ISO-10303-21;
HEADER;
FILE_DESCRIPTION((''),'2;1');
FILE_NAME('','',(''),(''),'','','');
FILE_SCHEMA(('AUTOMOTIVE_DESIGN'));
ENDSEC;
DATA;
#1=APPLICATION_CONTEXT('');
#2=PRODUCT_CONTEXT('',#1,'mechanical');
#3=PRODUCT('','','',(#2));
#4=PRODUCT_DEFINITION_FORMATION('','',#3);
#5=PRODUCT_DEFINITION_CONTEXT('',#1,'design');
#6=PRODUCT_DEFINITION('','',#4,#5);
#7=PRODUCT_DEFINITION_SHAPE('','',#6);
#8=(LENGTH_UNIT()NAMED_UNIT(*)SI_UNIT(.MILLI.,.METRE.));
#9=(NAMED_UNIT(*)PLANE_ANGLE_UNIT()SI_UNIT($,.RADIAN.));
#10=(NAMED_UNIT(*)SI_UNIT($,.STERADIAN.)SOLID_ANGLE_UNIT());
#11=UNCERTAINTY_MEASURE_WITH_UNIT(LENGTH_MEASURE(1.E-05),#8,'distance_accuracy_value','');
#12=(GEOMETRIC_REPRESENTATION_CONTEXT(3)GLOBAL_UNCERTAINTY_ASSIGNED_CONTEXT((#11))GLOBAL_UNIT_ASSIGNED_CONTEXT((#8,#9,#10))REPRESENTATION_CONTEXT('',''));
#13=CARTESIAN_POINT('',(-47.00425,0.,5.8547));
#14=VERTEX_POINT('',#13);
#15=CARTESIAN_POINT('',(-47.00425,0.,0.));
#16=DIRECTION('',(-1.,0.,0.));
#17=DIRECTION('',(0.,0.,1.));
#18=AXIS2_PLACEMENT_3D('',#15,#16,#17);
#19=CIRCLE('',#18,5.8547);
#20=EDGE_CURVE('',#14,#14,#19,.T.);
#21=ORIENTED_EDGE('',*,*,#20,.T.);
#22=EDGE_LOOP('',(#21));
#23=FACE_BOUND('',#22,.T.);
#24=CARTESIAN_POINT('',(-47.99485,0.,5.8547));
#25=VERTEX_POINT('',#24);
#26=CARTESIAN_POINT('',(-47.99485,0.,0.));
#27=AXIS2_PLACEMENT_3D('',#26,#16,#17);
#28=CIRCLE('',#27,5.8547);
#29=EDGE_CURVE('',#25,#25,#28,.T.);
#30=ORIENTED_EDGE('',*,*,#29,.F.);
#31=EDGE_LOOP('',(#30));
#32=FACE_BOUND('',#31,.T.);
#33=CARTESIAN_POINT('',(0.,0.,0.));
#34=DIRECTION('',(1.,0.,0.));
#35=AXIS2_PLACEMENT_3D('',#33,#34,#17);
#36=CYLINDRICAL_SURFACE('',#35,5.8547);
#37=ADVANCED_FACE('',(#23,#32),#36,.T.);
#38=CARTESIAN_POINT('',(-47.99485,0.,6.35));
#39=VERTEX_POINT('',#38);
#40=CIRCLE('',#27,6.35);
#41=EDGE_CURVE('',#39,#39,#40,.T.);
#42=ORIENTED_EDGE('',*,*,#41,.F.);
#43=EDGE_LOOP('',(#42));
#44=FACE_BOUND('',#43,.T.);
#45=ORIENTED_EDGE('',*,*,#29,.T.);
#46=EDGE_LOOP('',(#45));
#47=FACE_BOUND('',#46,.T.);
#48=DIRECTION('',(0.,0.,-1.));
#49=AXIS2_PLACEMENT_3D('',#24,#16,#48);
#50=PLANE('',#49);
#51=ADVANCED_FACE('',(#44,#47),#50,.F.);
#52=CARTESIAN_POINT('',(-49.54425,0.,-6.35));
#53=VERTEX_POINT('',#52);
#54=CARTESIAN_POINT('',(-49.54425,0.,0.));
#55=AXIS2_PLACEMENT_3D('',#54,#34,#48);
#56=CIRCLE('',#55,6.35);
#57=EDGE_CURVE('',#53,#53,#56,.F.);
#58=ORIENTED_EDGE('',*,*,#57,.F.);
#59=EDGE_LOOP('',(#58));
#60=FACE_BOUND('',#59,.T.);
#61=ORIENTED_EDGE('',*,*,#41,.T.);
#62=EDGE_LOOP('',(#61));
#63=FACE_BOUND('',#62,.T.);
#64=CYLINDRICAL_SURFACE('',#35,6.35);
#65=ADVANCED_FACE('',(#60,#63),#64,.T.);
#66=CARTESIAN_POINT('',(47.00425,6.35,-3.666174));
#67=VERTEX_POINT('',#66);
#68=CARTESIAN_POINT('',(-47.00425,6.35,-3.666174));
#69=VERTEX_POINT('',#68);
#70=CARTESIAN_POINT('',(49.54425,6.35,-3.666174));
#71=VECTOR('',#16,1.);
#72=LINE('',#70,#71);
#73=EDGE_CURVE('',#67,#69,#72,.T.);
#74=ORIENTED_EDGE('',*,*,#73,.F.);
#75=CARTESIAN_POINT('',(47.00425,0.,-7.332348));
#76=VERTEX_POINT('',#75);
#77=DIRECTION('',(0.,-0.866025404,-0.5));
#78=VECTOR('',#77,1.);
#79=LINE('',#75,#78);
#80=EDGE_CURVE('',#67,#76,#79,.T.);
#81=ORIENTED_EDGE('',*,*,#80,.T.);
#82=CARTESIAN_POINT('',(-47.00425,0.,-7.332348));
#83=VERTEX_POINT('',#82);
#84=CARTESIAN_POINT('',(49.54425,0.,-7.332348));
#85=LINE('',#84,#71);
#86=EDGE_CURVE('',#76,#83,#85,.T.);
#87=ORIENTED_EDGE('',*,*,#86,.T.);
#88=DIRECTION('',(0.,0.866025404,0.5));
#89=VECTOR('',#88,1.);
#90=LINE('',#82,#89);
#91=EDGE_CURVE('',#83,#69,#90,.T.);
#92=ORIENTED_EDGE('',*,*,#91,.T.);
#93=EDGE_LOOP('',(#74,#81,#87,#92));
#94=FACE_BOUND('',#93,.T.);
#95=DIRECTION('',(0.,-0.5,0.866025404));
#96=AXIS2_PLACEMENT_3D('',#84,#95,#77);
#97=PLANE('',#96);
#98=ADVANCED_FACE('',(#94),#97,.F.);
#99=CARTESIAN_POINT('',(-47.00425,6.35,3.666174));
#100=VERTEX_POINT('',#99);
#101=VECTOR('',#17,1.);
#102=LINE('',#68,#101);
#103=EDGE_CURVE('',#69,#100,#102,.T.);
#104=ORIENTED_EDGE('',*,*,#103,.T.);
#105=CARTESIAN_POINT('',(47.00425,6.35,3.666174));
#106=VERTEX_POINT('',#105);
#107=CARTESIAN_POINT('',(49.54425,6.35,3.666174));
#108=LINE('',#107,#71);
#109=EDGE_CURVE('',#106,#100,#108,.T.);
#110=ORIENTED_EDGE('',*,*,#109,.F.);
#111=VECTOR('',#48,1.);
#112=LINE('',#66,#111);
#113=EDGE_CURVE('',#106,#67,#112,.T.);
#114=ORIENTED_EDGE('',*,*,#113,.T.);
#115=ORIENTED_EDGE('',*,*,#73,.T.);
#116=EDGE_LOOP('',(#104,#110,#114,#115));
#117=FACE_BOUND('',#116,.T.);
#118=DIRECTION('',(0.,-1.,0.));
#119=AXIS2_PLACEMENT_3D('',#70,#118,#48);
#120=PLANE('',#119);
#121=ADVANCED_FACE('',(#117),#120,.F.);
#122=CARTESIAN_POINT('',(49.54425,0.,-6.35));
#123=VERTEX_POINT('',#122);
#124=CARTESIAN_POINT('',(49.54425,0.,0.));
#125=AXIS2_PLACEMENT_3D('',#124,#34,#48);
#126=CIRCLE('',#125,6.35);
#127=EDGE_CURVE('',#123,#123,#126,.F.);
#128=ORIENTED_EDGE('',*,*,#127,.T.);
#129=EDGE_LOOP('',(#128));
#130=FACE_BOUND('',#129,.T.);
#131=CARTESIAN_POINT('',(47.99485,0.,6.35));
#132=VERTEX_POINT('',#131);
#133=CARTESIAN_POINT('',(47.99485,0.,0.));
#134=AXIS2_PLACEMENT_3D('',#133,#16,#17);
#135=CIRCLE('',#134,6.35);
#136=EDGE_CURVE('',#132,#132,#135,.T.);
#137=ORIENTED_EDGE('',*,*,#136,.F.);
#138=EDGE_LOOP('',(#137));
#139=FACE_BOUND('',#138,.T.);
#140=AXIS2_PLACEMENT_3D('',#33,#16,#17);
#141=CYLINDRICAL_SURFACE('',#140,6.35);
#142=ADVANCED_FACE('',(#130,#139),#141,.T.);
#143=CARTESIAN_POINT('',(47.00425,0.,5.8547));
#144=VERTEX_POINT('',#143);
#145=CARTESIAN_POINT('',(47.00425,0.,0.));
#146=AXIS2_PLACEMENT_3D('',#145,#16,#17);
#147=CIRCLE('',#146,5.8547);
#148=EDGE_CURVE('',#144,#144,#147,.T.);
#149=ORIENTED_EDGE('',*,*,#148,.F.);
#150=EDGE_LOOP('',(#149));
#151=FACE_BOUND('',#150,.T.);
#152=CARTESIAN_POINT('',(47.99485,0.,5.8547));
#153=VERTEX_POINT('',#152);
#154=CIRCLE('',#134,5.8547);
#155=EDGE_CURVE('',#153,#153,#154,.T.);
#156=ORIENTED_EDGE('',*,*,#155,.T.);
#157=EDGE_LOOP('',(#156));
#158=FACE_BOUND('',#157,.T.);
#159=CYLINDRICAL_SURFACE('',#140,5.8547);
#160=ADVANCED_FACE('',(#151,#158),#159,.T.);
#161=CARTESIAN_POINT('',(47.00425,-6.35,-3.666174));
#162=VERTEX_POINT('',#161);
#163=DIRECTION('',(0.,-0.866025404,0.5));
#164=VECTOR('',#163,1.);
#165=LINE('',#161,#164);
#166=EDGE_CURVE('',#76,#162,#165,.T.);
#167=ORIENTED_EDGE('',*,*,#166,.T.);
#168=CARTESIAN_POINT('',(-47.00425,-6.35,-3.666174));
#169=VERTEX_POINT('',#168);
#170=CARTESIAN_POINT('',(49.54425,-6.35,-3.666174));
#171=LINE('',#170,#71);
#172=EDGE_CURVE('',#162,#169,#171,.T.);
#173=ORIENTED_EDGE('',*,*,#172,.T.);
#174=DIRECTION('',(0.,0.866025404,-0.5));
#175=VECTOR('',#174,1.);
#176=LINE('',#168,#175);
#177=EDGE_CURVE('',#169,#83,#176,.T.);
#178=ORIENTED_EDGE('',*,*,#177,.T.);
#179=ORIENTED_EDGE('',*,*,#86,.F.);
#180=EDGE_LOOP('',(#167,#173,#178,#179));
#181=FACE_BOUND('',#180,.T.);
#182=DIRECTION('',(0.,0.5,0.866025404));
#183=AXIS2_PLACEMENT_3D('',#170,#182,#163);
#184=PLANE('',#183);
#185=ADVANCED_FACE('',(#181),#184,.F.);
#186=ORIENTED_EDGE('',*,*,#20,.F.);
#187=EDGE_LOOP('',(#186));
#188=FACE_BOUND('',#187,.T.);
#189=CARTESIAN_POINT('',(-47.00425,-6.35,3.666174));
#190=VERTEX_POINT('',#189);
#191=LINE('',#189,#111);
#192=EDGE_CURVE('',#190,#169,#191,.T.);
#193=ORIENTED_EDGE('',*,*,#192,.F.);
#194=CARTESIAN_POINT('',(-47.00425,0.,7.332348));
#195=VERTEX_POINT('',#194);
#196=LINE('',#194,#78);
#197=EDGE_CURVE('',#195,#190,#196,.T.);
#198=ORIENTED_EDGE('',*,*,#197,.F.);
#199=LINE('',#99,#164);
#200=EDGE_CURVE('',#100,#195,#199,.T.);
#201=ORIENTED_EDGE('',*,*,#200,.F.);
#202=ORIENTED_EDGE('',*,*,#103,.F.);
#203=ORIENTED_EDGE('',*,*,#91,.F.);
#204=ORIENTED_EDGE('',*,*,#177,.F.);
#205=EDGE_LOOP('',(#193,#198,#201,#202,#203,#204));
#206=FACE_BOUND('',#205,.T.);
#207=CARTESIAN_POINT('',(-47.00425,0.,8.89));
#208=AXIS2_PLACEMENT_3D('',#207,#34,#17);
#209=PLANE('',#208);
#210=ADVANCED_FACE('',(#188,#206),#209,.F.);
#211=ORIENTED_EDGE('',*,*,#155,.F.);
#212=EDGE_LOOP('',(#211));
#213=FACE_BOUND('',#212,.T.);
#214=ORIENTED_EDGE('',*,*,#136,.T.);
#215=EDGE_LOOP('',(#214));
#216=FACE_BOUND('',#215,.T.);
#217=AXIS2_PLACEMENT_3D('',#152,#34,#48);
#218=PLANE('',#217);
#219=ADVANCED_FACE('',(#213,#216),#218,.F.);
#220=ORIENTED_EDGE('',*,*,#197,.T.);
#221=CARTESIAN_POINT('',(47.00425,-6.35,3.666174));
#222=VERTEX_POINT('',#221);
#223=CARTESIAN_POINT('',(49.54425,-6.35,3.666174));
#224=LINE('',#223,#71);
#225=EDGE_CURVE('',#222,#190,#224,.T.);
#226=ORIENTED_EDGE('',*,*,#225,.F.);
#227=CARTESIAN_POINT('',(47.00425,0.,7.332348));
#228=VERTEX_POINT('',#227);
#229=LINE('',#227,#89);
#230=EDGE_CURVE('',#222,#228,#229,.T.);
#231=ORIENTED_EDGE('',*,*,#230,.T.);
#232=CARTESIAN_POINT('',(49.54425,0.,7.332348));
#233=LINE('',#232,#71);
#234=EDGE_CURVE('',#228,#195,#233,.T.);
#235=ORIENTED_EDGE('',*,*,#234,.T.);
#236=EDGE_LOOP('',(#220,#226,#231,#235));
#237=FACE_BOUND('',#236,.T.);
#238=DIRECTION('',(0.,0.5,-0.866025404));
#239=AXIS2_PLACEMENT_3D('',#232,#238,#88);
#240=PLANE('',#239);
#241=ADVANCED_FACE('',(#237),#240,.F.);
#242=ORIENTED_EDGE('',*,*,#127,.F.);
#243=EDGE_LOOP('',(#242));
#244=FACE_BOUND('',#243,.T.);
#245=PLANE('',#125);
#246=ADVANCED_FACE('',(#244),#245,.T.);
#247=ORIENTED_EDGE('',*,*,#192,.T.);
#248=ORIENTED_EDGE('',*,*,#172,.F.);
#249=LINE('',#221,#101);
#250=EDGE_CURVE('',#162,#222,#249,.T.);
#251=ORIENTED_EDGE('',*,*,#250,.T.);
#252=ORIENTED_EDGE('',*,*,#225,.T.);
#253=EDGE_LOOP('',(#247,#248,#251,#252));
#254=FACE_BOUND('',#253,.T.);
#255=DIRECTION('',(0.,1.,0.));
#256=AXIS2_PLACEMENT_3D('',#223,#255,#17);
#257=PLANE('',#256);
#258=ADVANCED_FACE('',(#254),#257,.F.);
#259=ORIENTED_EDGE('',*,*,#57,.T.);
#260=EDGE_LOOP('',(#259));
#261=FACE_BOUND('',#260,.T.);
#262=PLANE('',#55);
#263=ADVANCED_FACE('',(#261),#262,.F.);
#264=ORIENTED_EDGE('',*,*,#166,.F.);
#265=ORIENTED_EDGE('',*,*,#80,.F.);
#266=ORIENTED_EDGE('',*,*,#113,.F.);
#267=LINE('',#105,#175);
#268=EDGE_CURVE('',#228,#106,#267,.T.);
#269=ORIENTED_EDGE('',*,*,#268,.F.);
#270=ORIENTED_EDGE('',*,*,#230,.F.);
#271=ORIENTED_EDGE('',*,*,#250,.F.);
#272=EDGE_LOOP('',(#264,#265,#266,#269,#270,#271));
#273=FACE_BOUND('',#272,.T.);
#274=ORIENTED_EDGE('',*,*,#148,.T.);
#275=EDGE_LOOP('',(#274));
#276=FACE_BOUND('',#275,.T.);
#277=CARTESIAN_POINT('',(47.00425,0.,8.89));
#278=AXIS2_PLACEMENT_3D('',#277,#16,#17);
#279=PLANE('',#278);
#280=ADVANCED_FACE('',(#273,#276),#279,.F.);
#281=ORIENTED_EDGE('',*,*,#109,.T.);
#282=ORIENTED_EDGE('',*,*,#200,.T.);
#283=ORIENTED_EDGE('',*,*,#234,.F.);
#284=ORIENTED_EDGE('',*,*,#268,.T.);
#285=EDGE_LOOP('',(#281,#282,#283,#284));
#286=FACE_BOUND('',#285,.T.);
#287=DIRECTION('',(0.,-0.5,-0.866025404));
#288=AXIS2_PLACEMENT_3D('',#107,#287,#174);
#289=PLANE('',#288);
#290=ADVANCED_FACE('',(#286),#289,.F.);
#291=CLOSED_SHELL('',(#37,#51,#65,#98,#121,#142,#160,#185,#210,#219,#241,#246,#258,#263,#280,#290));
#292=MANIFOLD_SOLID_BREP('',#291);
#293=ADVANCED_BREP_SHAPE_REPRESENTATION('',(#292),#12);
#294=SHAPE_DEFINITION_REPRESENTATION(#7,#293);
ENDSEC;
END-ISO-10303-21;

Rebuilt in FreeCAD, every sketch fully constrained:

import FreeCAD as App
import Part
import Sketcher

V = App.Vector
Q = App.Units.Quantity


def add_polygon(sketch, points):
    """Adds a closed chain of lines whose ends are joined by coincident constraints."""
    first, n = sketch.GeometryCount, len(points)
    for a, b in zip(points, points[1:] + points[:1]):
        sketch.addGeometry(Part.LineSegment(App.Vector(*a, 0), App.Vector(*b, 0)), False)
    for i in range(n):
        sketch.addConstraint(Sketcher.Constraint("Coincident", first + i, 2, first + (i + 1) % n, 1))

doc = App.newDocument("Part")
body = doc.addObject("PartDesign::Body", "Body")

# Sketch on YZ plane
sketch1 = body.newObject("Sketcher::SketchObject", "Sketch")
sketch1.AttachmentSupport = (doc.getObject("YZ_Plane"), [""])
sketch1.MapMode = "FlatFace"
add_polygon(sketch1, [(0, -7), (6, -4), (6, 4), (0, 7), (-6, 4), (-6, -4)])  # lines 0-5
sketch1.addConstraint([
    Sketcher.Constraint("Vertical", 1),
    Sketcher.Constraint("Vertical", 4),
    Sketcher.Constraint("Symmetric", 0, 2, 3, 2, -1, 1),
    Sketcher.Constraint("Symmetric", 2, 2, 5, 2, -1, 1),
    Sketcher.Constraint("PointOnObject", 2, 2, -2),
    Sketcher.Constraint("Parallel", 2, 5),
    Sketcher.Constraint("Horizontal", 1, 2, 3, 2),
    Sketcher.Constraint("Angle", 0, Q("30 deg")),
    Sketcher.Constraint("DistanceX", 3, 2, 1, 2, Q("0.5 in")),
    Sketcher.Constraint("DistanceY", 1, 1, 1, 2, Q("7.332348 mm")),
])
pad1 = body.newObject("PartDesign::Pad", "Pad")
pad1.Profile = sketch1
pad1.Length = 99.0885
pad1.Midplane = True

# Sketch on XZ plane
sketch2 = body.newObject("Sketcher::SketchObject", "Sketch001")
sketch2.AttachmentSupport = (doc.getObject("XZ_Plane"), [""])
sketch2.MapMode = "FlatFace"
add_polygon(sketch2, [(47.99, 5.85), (47, 5.85), (47, 8.89), (49.54, 8.89), (49.54, 6.35), (47.99, 6.35)])  # lines 0-5
sketch2.addConstraint([
    Sketcher.Constraint("Horizontal", 0),
    Sketcher.Constraint("Vertical", 1),
    Sketcher.Constraint("Horizontal", 2),
    Sketcher.Constraint("Vertical", 3),
    Sketcher.Constraint("Horizontal", 4),
    Sketcher.Constraint("Vertical", 5),
    Sketcher.Constraint("Equal", 2, 3),
    Sketcher.Constraint("DistanceX", 2, 1, 2, 2, Q("0.1 in")),
    Sketcher.Constraint("DistanceX", 0, 2, 0, 1, Q("0.039 in")),
    Sketcher.Constraint("DistanceY", -1, 1, 1, 2, Q("0.35 in")),
    Sketcher.Constraint("DistanceY", 1, 1, 1, 2, Q("0.1195 in")),
    Sketcher.Constraint("DistanceX", -1, 1, 0, 2, Q("47.00425 mm")),
])
groove = body.newObject("PartDesign::Groove", "Groove")
groove.Profile = sketch2
groove.ReferenceAxis = (sketch2, ["H_Axis"])
groove.Angle = 360
doc.recompute()

mirrored = body.newObject("PartDesign::Mirrored", "Mirrored")
mirrored.Originals = [groove]
mirrored.MirrorPlane = (doc.getObject("YZ_Plane"), [""])
body.Tip = mirrored

doc.recompute()
